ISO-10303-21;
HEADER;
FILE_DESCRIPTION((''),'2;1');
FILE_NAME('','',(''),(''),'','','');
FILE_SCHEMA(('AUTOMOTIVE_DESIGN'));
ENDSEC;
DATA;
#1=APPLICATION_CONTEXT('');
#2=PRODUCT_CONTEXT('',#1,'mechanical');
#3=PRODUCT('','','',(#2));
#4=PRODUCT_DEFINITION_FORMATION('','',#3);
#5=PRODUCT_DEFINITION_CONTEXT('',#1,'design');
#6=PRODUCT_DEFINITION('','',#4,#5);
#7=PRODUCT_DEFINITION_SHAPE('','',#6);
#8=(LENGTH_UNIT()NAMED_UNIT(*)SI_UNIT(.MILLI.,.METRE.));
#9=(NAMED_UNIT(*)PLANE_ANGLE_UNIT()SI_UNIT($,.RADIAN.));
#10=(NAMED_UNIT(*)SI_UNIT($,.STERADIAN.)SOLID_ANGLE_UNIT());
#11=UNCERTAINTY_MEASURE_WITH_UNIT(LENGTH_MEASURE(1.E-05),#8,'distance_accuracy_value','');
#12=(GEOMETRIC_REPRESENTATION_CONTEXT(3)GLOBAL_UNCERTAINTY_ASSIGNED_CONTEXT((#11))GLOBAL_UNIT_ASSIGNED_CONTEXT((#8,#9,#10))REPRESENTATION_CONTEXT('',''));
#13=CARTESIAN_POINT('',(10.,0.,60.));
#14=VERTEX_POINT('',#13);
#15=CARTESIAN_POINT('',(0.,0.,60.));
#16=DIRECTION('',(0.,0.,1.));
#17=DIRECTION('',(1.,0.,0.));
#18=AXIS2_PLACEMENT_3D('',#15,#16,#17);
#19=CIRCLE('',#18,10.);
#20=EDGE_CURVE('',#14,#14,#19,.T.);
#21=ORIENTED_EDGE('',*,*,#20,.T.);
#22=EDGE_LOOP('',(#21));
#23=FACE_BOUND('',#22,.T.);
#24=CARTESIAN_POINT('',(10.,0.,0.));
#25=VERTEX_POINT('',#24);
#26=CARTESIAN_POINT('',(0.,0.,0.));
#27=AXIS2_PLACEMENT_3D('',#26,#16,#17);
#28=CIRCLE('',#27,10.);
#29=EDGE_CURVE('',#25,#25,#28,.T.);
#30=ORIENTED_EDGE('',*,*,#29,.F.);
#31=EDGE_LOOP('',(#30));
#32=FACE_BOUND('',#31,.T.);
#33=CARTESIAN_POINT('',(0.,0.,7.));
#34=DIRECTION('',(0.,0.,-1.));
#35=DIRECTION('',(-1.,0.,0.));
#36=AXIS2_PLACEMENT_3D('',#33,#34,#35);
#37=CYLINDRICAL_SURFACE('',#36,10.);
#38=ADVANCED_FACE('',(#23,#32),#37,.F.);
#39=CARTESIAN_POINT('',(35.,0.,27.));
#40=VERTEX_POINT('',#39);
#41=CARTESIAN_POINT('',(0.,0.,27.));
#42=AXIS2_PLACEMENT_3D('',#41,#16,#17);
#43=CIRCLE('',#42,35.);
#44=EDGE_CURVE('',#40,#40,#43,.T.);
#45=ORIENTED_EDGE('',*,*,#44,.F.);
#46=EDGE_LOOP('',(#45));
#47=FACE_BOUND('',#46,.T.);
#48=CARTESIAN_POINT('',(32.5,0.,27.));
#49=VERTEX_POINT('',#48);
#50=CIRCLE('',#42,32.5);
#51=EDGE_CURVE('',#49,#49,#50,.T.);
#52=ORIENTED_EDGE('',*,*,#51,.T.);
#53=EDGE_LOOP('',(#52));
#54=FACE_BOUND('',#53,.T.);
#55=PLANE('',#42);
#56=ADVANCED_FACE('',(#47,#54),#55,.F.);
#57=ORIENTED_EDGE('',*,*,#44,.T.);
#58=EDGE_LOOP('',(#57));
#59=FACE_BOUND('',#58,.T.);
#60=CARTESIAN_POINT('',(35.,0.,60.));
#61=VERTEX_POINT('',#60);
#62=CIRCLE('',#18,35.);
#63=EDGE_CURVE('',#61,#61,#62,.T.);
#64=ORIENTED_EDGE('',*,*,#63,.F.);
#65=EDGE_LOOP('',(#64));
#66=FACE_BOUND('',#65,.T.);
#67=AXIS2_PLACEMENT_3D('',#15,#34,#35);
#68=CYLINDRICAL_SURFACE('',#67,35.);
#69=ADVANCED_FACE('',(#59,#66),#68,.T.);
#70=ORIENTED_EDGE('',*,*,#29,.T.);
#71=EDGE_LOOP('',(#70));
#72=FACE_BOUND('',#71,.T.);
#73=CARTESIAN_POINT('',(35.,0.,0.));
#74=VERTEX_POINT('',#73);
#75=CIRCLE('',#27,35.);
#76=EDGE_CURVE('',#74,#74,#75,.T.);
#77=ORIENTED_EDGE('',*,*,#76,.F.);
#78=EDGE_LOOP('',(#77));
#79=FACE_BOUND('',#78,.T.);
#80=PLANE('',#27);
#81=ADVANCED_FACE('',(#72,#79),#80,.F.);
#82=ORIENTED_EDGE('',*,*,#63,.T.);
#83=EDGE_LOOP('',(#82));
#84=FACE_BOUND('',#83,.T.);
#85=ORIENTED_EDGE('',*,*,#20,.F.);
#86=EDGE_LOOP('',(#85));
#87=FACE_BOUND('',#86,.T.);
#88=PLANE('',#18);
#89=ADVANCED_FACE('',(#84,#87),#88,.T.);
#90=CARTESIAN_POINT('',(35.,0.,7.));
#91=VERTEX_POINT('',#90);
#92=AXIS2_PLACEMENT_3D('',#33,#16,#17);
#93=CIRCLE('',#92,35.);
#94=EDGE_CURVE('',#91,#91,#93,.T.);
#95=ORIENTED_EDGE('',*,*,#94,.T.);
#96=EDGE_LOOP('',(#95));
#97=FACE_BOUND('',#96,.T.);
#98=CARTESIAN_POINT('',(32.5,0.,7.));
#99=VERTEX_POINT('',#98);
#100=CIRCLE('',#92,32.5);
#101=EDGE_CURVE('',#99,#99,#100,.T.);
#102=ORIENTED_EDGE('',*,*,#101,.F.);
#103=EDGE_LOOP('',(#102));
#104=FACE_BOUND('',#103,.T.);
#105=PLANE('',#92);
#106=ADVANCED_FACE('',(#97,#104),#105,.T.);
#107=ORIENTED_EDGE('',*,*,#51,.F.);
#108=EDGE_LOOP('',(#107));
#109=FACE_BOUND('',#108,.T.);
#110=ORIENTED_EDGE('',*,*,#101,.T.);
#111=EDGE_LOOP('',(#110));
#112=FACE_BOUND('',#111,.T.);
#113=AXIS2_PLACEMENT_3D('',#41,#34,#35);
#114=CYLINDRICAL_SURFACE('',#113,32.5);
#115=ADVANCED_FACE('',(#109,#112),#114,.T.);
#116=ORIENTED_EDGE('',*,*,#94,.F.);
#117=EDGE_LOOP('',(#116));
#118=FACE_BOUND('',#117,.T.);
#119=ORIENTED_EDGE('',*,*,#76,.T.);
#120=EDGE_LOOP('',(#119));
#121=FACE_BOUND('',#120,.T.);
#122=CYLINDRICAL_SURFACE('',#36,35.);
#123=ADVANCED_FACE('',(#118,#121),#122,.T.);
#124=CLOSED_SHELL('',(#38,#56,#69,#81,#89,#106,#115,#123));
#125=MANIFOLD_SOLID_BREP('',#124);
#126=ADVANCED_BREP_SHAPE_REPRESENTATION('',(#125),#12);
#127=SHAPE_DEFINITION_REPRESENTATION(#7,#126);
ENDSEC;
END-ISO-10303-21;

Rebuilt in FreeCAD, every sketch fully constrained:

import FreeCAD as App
import Part
import Sketcher

doc = App.newDocument("Part")
body = doc.addObject("PartDesign::Body", "Body")

sketch1 = body.newObject("Sketcher::SketchObject", "Sketch")
sketch1.AttachmentSupport = (doc.getObject("XY_Plane"), [""])
sketch1.MapMode = "FlatFace"
sketch1.addGeometry([
    Part.Circle(App.Vector(0, 0, 0), App.Vector(0, 0, 1), 35),
    Part.Circle(App.Vector(0, 0, 0), App.Vector(0, 0, 1), 10),
], False)
sketch1.addConstraint([
    Sketcher.Constraint("Coincident", 0, 3, -1, 1),
    Sketcher.Constraint("Coincident", 1, 3, -1, 1),
    Sketcher.Constraint("Diameter", 0, 70.0),
    Sketcher.Constraint("Diameter", 1, 20.0),
])
pad1 = body.newObject("PartDesign::Pad", "Pad")
pad1.Profile = sketch1
pad1.Length = 7

sketch2 = body.newObject("Sketcher::SketchObject", "Sketch001")
sketch2.AttachmentSupport = (doc.getObject("XY_Plane"), [""])
sketch2.MapMode = "FlatFace"
sketch2.AttachmentOffset = App.Placement(App.Vector(0, 0, 7), App.Rotation())
sketch2.addGeometry([
    Part.Circle(App.Vector(0, 0, 0), App.Vector(0, 0, 1), 32.5),
    Part.Circle(App.Vector(0, 0, 0), App.Vector(0, 0, 1), 10),
], False)
sketch2.addConstraint([
    Sketcher.Constraint("Coincident", 0, 3, -1, 1),
    Sketcher.Constraint("Coincident", 1, 3, -1, 1),
    Sketcher.Constraint("Diameter", 0, 65.0),
    Sketcher.Constraint("Diameter", 1, 20.0),
])
pad2 = body.newObject("PartDesign::Pad", "Pad001")
pad2.Profile = sketch2
pad2.Length = 20

sketch3 = body.newObject("Sketcher::SketchObject", "Sketch002")
sketch3.AttachmentSupport = (doc.getObject("XY_Plane"), [""])
sketch3.MapMode = "FlatFace"
sketch3.AttachmentOffset = App.Placement(App.Vector(0, 0, 27), App.Rotation())
sketch3.addGeometry([
    Part.Circle(App.Vector(0, 0, 0), App.Vector(0, 0, 1), 35),
    Part.Circle(App.Vector(0, 0, 0), App.Vector(0, 0, 1), 10),
], False)
sketch3.addConstraint([
    Sketcher.Constraint("Coincident", 0, 3, -1, 1),
    Sketcher.Constraint("Coincident", 1, 3, -1, 1),
    Sketcher.Constraint("Diameter", 0, 70.0),
    Sketcher.Constraint("Diameter", 1, 20.0),
])
pad3 = body.newObject("PartDesign::Pad", "Pad002")
pad3.Profile = sketch3
pad3.Length = 33

doc.recompute()
